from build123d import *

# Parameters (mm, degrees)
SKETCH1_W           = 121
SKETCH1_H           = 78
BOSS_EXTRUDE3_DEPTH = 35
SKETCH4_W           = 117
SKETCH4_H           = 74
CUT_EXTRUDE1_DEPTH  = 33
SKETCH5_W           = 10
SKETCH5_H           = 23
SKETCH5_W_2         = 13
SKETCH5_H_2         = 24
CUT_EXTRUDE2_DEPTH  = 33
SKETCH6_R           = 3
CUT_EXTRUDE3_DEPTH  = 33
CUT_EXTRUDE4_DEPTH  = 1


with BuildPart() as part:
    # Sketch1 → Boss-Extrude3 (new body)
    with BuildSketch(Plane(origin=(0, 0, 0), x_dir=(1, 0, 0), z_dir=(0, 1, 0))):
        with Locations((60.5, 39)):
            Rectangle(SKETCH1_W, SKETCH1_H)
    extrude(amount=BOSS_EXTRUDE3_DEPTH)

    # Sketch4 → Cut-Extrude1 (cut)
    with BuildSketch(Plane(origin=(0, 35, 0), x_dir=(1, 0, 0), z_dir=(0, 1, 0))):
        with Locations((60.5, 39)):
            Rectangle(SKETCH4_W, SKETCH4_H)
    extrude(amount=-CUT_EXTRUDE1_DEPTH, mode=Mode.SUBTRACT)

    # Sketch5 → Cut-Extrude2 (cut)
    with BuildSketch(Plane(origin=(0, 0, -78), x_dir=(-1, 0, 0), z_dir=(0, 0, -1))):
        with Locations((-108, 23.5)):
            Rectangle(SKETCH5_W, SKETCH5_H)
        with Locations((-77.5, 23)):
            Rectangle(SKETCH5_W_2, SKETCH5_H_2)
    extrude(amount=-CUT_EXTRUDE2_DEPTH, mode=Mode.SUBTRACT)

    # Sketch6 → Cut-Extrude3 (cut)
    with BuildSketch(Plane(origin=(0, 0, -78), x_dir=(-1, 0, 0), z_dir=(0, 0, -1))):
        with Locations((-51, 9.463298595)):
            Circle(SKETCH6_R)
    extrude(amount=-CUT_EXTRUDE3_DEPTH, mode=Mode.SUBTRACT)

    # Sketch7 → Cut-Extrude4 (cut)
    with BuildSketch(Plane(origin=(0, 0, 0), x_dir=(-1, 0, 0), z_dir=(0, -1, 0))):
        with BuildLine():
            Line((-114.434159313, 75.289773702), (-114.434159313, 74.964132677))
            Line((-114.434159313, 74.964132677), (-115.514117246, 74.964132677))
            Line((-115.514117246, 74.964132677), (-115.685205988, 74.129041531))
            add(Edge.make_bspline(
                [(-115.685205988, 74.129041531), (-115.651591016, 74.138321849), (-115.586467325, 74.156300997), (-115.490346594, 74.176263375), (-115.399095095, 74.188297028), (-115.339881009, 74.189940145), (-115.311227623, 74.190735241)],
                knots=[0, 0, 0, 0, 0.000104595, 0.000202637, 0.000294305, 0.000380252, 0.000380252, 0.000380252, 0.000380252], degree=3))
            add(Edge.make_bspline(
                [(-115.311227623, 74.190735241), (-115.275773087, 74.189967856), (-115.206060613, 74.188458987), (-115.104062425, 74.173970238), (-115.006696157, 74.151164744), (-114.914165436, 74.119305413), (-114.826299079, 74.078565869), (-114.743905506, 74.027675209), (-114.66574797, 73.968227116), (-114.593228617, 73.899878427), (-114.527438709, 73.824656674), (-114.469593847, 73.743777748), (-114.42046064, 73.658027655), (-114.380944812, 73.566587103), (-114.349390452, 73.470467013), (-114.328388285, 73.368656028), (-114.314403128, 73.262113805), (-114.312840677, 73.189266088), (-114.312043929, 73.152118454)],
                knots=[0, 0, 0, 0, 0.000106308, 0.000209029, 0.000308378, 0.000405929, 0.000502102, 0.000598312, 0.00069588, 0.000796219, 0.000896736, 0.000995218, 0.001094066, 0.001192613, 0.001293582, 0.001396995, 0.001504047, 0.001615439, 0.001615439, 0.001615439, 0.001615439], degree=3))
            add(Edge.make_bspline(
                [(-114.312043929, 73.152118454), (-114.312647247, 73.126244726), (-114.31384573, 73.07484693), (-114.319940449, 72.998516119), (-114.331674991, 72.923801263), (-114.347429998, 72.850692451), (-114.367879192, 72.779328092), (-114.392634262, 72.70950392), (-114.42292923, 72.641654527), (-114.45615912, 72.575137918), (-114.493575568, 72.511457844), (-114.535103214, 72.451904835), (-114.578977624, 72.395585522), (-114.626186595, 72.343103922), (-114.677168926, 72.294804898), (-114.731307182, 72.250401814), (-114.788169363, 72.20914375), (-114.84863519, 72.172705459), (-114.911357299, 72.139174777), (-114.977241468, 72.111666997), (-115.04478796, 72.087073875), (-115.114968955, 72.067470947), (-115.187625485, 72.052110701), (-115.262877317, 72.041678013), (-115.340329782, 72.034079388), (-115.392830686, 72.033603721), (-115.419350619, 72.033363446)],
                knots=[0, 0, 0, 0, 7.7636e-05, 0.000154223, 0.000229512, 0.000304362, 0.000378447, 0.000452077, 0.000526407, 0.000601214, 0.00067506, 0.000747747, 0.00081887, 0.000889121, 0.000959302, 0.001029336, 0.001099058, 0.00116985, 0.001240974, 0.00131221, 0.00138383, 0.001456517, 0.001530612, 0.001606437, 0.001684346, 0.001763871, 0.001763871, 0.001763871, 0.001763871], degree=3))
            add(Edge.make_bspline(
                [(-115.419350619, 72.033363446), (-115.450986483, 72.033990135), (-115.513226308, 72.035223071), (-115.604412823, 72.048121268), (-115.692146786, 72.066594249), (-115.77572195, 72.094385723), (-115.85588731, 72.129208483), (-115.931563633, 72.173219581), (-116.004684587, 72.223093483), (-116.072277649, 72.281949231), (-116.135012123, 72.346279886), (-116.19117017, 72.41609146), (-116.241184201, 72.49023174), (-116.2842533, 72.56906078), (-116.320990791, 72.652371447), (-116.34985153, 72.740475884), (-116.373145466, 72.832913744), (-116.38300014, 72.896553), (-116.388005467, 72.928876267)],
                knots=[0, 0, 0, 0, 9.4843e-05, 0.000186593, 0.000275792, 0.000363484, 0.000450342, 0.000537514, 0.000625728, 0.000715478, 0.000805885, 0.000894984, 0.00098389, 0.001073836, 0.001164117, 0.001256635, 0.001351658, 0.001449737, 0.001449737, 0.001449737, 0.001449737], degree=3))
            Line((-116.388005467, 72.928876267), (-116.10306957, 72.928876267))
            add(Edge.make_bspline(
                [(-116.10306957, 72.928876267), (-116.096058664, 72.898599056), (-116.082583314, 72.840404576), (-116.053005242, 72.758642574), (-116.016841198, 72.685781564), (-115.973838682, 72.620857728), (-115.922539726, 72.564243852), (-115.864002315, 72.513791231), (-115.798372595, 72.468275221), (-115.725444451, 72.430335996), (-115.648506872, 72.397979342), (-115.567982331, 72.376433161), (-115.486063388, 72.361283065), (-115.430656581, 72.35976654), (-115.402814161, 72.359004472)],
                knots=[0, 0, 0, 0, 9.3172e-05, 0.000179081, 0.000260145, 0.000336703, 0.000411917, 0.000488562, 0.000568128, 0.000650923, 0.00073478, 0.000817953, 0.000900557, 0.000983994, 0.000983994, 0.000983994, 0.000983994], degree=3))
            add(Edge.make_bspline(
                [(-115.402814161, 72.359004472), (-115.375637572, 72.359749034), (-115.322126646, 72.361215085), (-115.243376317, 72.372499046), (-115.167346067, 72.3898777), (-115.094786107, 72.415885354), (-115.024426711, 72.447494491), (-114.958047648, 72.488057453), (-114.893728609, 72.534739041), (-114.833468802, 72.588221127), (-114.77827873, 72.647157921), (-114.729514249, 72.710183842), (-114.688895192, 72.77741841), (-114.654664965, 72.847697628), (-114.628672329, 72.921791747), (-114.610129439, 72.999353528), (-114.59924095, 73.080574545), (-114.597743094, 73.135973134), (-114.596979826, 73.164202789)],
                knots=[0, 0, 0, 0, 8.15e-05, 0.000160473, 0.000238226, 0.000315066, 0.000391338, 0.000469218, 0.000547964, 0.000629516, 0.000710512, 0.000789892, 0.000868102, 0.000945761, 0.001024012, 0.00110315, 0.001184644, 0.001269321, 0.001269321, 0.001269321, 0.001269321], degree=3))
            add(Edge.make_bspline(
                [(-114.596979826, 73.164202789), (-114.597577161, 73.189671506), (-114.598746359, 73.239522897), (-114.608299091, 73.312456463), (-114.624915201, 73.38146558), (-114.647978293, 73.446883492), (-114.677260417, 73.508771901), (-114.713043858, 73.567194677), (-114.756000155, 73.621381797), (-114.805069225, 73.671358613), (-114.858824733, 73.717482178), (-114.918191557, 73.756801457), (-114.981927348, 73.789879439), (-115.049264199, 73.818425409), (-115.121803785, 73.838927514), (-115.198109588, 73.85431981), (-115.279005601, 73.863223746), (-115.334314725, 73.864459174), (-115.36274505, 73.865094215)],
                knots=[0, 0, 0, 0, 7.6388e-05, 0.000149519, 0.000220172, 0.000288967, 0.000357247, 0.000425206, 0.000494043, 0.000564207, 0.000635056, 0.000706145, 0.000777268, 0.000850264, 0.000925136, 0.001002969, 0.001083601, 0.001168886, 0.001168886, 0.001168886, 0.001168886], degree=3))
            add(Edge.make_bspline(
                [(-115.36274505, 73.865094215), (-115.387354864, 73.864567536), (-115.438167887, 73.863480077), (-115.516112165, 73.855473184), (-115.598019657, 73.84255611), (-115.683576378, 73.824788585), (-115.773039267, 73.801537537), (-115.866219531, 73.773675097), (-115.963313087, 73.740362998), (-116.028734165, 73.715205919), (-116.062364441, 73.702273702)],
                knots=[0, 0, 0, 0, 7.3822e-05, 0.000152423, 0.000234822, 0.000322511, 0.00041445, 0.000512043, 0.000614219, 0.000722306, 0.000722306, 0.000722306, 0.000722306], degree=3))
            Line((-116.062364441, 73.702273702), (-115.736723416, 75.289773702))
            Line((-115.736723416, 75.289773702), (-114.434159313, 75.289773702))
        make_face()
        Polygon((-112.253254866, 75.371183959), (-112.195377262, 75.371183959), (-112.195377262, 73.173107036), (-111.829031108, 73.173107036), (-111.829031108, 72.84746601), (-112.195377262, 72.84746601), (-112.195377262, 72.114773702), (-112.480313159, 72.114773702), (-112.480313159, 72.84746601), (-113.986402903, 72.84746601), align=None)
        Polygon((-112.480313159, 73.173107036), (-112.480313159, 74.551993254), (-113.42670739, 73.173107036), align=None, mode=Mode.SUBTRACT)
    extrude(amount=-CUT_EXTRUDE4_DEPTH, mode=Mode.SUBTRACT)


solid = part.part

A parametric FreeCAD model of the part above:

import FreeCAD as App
import Part
import Sketcher
Q = App.Units.Quantity


def add_polygon(sketch, points):
    """Adds a closed chain of lines whose ends are joined by coincident constraints."""
    first, n = sketch.GeometryCount, len(points)
    for a, b in zip(points, points[1:] + points[:1]):
        sketch.addGeometry(Part.LineSegment(App.Vector(*a, 0), App.Vector(*b, 0)), False)
    for i in range(n):
        sketch.addConstraint(Sketcher.Constraint("Coincident", first + i, 2, first + (i + 1) % n, 1))

doc = App.newDocument("Part")
body = doc.addObject("PartDesign::Body", "Body")

# Sketch on XZ plane
sketch1 = body.newObject("Sketcher::SketchObject", "Sketch")
sketch1.AttachmentSupport = (doc.getObject("XZ_Plane"), [""])
sketch1.MapMode = "FlatFace"
add_polygon(sketch1, [(0, -78), (0, 0), (121, 0), (121, -78)])  # lines 0-3
sketch1.addConstraint([
    Sketcher.Constraint("Vertical", 0),
    Sketcher.Constraint("Horizontal", 1),
    Sketcher.Constraint("Vertical", 2),
    Sketcher.Constraint("Horizontal", 3),
    Sketcher.Constraint("Coincident", 0, 2, -1, 1),
    Sketcher.Constraint("DistanceX", 1, 1, 1, 2, Q("121 mm")),
    Sketcher.Constraint("DistanceY", 0, 1, 0, 2, Q("78 mm")),
])
pad1 = body.newObject("PartDesign::Pad", "Pad")
pad1.Profile = sketch1
pad1.Length = 35
pad1.Reversed = True

# Sketch on XZ plane
sketch2 = body.newObject("Sketcher::SketchObject", "Sketch001")
sketch2.AttachmentSupport = (doc.getObject("XZ_Plane"), [""])
sketch2.MapMode = "FlatFace"
sketch2.AttachmentOffset = App.Placement(App.Vector(0, 0, -35), App.Rotation())
add_polygon(sketch2, [(2, -76), (2, -2), (119, -2), (119, -76)])  # lines 0-3
sketch2.addConstraint([
    Sketcher.Constraint("Vertical", 0),
    Sketcher.Constraint("Horizontal", 1),
    Sketcher.Constraint("Vertical", 2),
    Sketcher.Constraint("Horizontal", 3),
    Sketcher.Constraint("DistanceX", 1, 1, 1, 2, Q("117 mm")),
    Sketcher.Constraint("DistanceY", 0, 1, 0, 2, Q("74 mm")),
    Sketcher.Constraint("DistanceX", -1, 1, 0, 2, Q("2 mm")),
    Sketcher.Constraint("DistanceY", 0, 2, -1, 1, Q("2 mm")),
])
pocket1 = body.newObject("PartDesign::Pocket", "Pocket")
pocket1.Profile = sketch2
pocket1.Length = 33
pocket1.Reversed = True

# Sketch on XY plane
sketch3 = body.newObject("Sketcher::SketchObject", "Sketch002")
sketch3.AttachmentSupport = (doc.getObject("XY_Plane"), [""])
sketch3.MapMode = "FlatFace"
sketch3.AttachmentOffset = App.Placement(App.Vector(0, 0, -78), App.Rotation())
add_polygon(sketch3, [(113, 35), (113, 12), (103, 12), (103, 35)])  # lines 0-3
add_polygon(sketch3, [(84, 35), (84, 11), (71, 11), (71, 35)])  # lines 4-7
sketch3.addConstraint([
    Sketcher.Constraint("Vertical", 0),
    Sketcher.Constraint("Horizontal", 1),
    Sketcher.Constraint("Vertical", 2),
    Sketcher.Constraint("Horizontal", 3),
    Sketcher.Constraint("Vertical", 4),
    Sketcher.Constraint("Horizontal", 5),
    Sketcher.Constraint("Vertical", 6),
    Sketcher.Constraint("Horizontal", 7),
    Sketcher.Constraint("Horizontal", 3, 2, 6, 2),
    Sketcher.Constraint("DistanceX", 1, 2, 1, 1, Q("10 mm")),
    Sketcher.Constraint("DistanceX", 5, 2, 5, 1, Q("13 mm")),
    Sketcher.Constraint("DistanceY", 0, 2, 0, 1, Q("23 mm")),
    Sketcher.Constraint("DistanceY", 4, 2, 4, 1, Q("24 mm")),
    Sketcher.Constraint("DistanceX", -1, 1, 0, 2, Q("113 mm")),
    Sketcher.Constraint("DistanceY", -1, 1, 0, 2, Q("12 mm")),
    Sketcher.Constraint("DistanceX", -1, 1, 4, 2, Q("84 mm")),
])
pocket2 = body.newObject("PartDesign::Pocket", "Pocket001")
pocket2.Profile = sketch3
pocket2.Length = 33
pocket2.Reversed = True

# Sketch on XY plane
sketch4 = body.newObject("Sketcher::SketchObject", "Sketch003")
sketch4.AttachmentSupport = (doc.getObject("XY_Plane"), [""])
sketch4.MapMode = "FlatFace"
sketch4.AttachmentOffset = App.Placement(App.Vector(0, 0, -78), App.Rotation())
sketch4.addGeometry(Part.Circle(App.Vector(51, 9.5, 0), App.Vector(0, 0, 1), 3), False)
sketch4.addConstraint([
    Sketcher.Constraint("Diameter", 0, Q("6 mm")),
    Sketcher.Constraint("DistanceX", -1, 1, 0, 3, Q("51 mm")),
    Sketcher.Constraint("DistanceY", -1, 1, 0, 3, Q("9.463299 mm")),
])
pocket3 = body.newObject("PartDesign::Pocket", "Pocket002")
pocket3.Profile = sketch4
pocket3.Length = 33
pocket3.Reversed = True

# Sketch on XZ plane
sketch5 = body.newObject("Sketcher::SketchObject", "Sketch004")
sketch5.AttachmentSupport = (doc.getObject("XZ_Plane"), [""])
sketch5.MapMode = "FlatFace"
sketch5.addGeometry(Part.LineSegment(App.Vector(114.434159, -74.964133, 0), App.Vector(114.434159, -75.289774, 0)), False)  # 0
sketch5.addGeometry(Part.LineSegment(App.Vector(114.434159, -75.289774, 0), App.Vector(115.736723, -75.289774, 0)), False)  # 1
sketch5.addGeometry(Part.LineSegment(App.Vector(115.736723, -75.289774, 0), App.Vector(116.062364, -73.702274, 0)), False)  # 2
sketch5.addGeometry(Part.BSplineCurve([App.Vector(115.362745, -73.865094, 0), App.Vector(115.387355, -73.864568, 0), App.Vector(115.438168, -73.86348, 0), App.Vector(115.516112, -73.855473, 0), App.Vector(115.59802, -73.842556, 0), App.Vector(115.683576, -73.824789, 0), App.Vector(115.773039, -73.801538, 0), App.Vector(115.86622, -73.773675, 0), App.Vector(115.963313, -73.740363, 0), App.Vector(116.028734, -73.715206, 0), App.Vector(116.062364, -73.702274, 0)], [4, 1, 1, 1, 1, 1, 1, 1, 4], [0, 0.000073822, 0.000152423, 0.000234822, 0.000322511, 0.00041445, 0.000512043, 0.000614219, 0.000722306], False, 3, [1, 1, 1, 1, 1, 1, 1, 1, 1, 1, 1], False), False)  # 3
sketch5.addGeometry(Part.BSplineCurve([App.Vector(114.59698, -73.164203, 0), App.Vector(114.597577, -73.189672, 0), App.Vector(114.598746, -73.239523, 0), App.Vector(114.608299, -73.312456, 0), App.Vector(114.624915, -73.381466, 0), App.Vector(114.647978, -73.446883, 0), App.Vector(114.67726, -73.508772, 0), App.Vector(114.713044, -73.567195, 0), App.Vector(114.756, -73.621382, 0), App.Vector(114.805069, -73.671359, 0), App.Vector(114.858825, -73.717482, 0), App.Vector(114.918192, -73.756801, 0), App.Vector(114.981927, -73.789879, 0), App.Vector(115.049264, -73.818425, 0), App.Vector(115.121804, -73.838928, 0), App.Vector(115.19811, -73.85432, 0), App.Vector(115.279006, -73.863224, 0), App.Vector(115.334315, -73.864459, 0), App.Vector(115.362745, -73.865094, 0)], [4, 1, 1, 1, 1, 1, 1, 1, 1, 1, 1, 1, 1, 1, 1, 1, 4], [0, 0.000076388, 0.000149519, 0.000220172, 0.000288967, 0.000357247, 0.000425206, 0.000494043, 0.000564207, 0.000635056, 0.000706145, 0.000777268, 0.000850264, 0.000925136, 0.001002969, 0.001083601, 0.001168886], False, 3, [1, 1, 1, 1, 1, 1, 1, 1, 1, 1, 1, 1, 1, 1, 1, 1, 1, 1, 1], False), False)  # 4
sketch5.addGeometry(Part.BSplineCurve([App.Vector(115.402814, -72.359004, 0), App.Vector(115.375638, -72.359749, 0), App.Vector(115.322127, -72.361215, 0), App.Vector(115.243376, -72.372499, 0), App.Vector(115.167346, -72.389878, 0), App.Vector(115.094786, -72.415885, 0), App.Vector(115.024427, -72.447494, 0), App.Vector(114.958048, -72.488057, 0), App.Vector(114.893729, -72.534739, 0), App.Vector(114.833469, -72.588221, 0), App.Vector(114.778279, -72.647158, 0), App.Vector(114.729514, -72.710184, 0), App.Vector(114.688895, -72.777418, 0), App.Vector(114.654665, -72.847698, 0), App.Vector(114.628672, -72.921792, 0), App.Vector(114.610129, -72.999354, 0), App.Vector(114.599241, -73.080575, 0), App.Vector(114.597743, -73.135973, 0), App.Vector(114.59698, -73.164203, 0)], [4, 1, 1, 1, 1, 1, 1, 1, 1, 1, 1, 1, 1, 1, 1, 1, 4], [0, 0.0000815, 0.000160473, 0.000238226, 0.000315066, 0.000391338, 0.000469218, 0.000547964, 0.000629516, 0.000710512, 0.000789892, 0.000868102, 0.000945761, 0.001024012, 0.00110315, 0.001184644, 0.001269321], False, 3, [1, 1, 1, 1, 1, 1, 1, 1, 1, 1, 1, 1, 1, 1, 1, 1, 1, 1, 1], False), False)  # 5
sketch5.addGeometry(Part.BSplineCurve([App.Vector(116.10307, -72.928876, 0), App.Vector(116.096059, -72.898599, 0), App.Vector(116.082583, -72.840405, 0), App.Vector(116.053005, -72.758643, 0), App.Vector(116.016841, -72.685782, 0), App.Vector(115.973839, -72.620858, 0), App.Vector(115.92254, -72.564244, 0), App.Vector(115.864002, -72.513791, 0), App.Vector(115.798373, -72.468275, 0), App.Vector(115.725444, -72.430336, 0), App.Vector(115.648507, -72.397979, 0), App.Vector(115.567982, -72.376433, 0), App.Vector(115.486063, -72.361283, 0), App.Vector(115.430657, -72.359767, 0), App.Vector(115.402814, -72.359004, 0)], [4, 1, 1, 1, 1, 1, 1, 1, 1, 1, 1, 1, 4], [0, 0.000093172, 0.000179081, 0.000260145, 0.000336703, 0.000411917, 0.000488562, 0.000568128, 0.000650923, 0.00073478, 0.000817953, 0.000900557, 0.000983994], False, 3, [1, 1, 1, 1, 1, 1, 1, 1, 1, 1, 1, 1, 1, 1, 1], False), False)  # 6
sketch5.addGeometry(Part.LineSegment(App.Vector(116.10307, -72.928876, 0), App.Vector(116.388005, -72.928876, 0)), False)  # 7
sketch5.addGeometry(Part.BSplineCurve([App.Vector(115.419351, -72.033363, 0), App.Vector(115.450986, -72.03399, 0), App.Vector(115.513226, -72.035223, 0), App.Vector(115.604413, -72.048121, 0), App.Vector(115.692147, -72.066594, 0), App.Vector(115.775722, -72.094386, 0), App.Vector(115.855887, -72.129208, 0), App.Vector(115.931564, -72.17322, 0), App.Vector(116.004685, -72.223093, 0), App.Vector(116.072278, -72.281949, 0), App.Vector(116.135012, -72.34628, 0), App.Vector(116.19117, -72.416091, 0), App.Vector(116.241184, -72.490232, 0), App.Vector(116.284253, -72.569061, 0), App.Vector(116.320991, -72.652371, 0), App.Vector(116.349852, -72.740476, 0), App.Vector(116.373145, -72.832914, 0), App.Vector(116.383, -72.896553, 0), App.Vector(116.388005, -72.928876, 0)], [4, 1, 1, 1, 1, 1, 1, 1, 1, 1, 1, 1, 1, 1, 1, 1, 4], [0, 0.000094843, 0.000186593, 0.000275792, 0.000363484, 0.000450342, 0.000537514, 0.000625728, 0.000715478, 0.000805885, 0.000894984, 0.00098389, 0.001073836, 0.001164117, 0.001256635, 0.001351658, 0.001449737], False, 3, [1, 1, 1, 1, 1, 1, 1, 1, 1, 1, 1, 1, 1, 1, 1, 1, 1, 1, 1], False), False)  # 8
sketch5.addGeometry(Part.BSplineCurve([App.Vector(114.312044, -73.152118, 0), App.Vector(114.312647, -73.126245, 0), App.Vector(114.313846, -73.074847, 0), App.Vector(114.31994, -72.998516, 0), App.Vector(114.331675, -72.923801, 0), App.Vector(114.34743, -72.850692, 0), App.Vector(114.367879, -72.779328, 0), App.Vector(114.392634, -72.709504, 0), App.Vector(114.422929, -72.641655, 0), App.Vector(114.456159, -72.575138, 0), App.Vector(114.493576, -72.511458, 0), App.Vector(114.535103, -72.451905, 0), App.Vector(114.578978, -72.395586, 0), App.Vector(114.626187, -72.343104, 0), App.Vector(114.677169, -72.294805, 0), App.Vector(114.731307, -72.250402, 0), App.Vector(114.788169, -72.209144, 0), App.Vector(114.848635, -72.172705, 0), App.Vector(114.911357, -72.139175, 0), App.Vector(114.977241, -72.111667, 0), App.Vector(115.044788, -72.087074, 0), App.Vector(115.114969, -72.067471, 0), App.Vector(115.187625, -72.052111, 0), App.Vector(115.262877, -72.041678, 0), App.Vector(115.34033, -72.034079, 0), App.Vector(115.392831, -72.033604, 0), App.Vector(115.419351, -72.033363, 0)], [4, 1, 1, 1, 1, 1, 1, 1, 1, 1, 1, 1, 1, 1, 1, 1, 1, 1, 1, 1, 1, 1, 1, 1, 4], [0, 0.000077636, 0.000154223, 0.000229512, 0.000304362, 0.000378447, 0.000452077, 0.000526407, 0.000601214, 0.00067506, 0.000747747, 0.00081887, 0.000889121, 0.000959302, 0.001029336, 0.001099058, 0.00116985, 0.001240974, 0.00131221, 0.00138383, 0.001456517, 0.001530612, 0.001606437, 0.001684346, 0.001763871], False, 3, [1, 1, 1, 1, 1, 1, 1, 1, 1, 1, 1, 1, 1, 1, 1, 1, 1, 1, 1, 1, 1, 1, 1, 1, 1, 1, 1], False), False)  # 9
sketch5.addGeometry(Part.BSplineCurve([App.Vector(115.311228, -74.190735, 0), App.Vector(115.275773, -74.189968, 0), App.Vector(115.206061, -74.188459, 0), App.Vector(115.104062, -74.17397, 0), App.Vector(115.006696, -74.151165, 0), App.Vector(114.914165, -74.119305, 0), App.Vector(114.826299, -74.078566, 0), App.Vector(114.743906, -74.027675, 0), App.Vector(114.665748, -73.968227, 0), App.Vector(114.593229, -73.899878, 0), App.Vector(114.527439, -73.824657, 0), App.Vector(114.469594, -73.743778, 0), App.Vector(114.420461, -73.658028, 0), App.Vector(114.380945, -73.566587, 0), App.Vector(114.34939, -73.470467, 0), App.Vector(114.328388, -73.368656, 0), App.Vector(114.314403, -73.262114, 0), App.Vector(114.312841, -73.189266, 0), App.Vector(114.312044, -73.152118, 0)], [4, 1, 1, 1, 1, 1, 1, 1, 1, 1, 1, 1, 1, 1, 1, 1, 4], [0, 0.000106308, 0.000209029, 0.000308378, 0.000405929, 0.000502102, 0.000598312, 0.00069588, 0.000796219, 0.000896736, 0.000995218, 0.001094066, 0.001192613, 0.001293582, 0.001396995, 0.001504047, 0.001615439], False, 3, [1, 1, 1, 1, 1, 1, 1, 1, 1, 1, 1, 1, 1, 1, 1, 1, 1, 1, 1], False), False)  # 10
sketch5.addGeometry(Part.BSplineCurve([App.Vector(115.685206, -74.129042, 0), App.Vector(115.651591, -74.138322, 0), App.Vector(115.586467, -74.156301, 0), App.Vector(115.490347, -74.176263, 0), App.Vector(115.399095, -74.188297, 0), App.Vector(115.339881, -74.18994, 0), App.Vector(115.311228, -74.190735, 0)], [4, 1, 1, 1, 4], [0, 0.000104595, 0.000202637, 0.000294305, 0.000380252], False, 3, [1, 1, 1, 1, 1, 1, 1], False), False)  # 11
sketch5.addGeometry(Part.LineSegment(App.Vector(115.685206, -74.129042, 0), App.Vector(115.514117, -74.964133, 0)), False)  # 12
sketch5.addGeometry(Part.LineSegment(App.Vector(115.514117, -74.964133, 0), App.Vector(114.434159, -74.964133, 0)), False)  # 13
add_polygon(sketch5, [(112.195377, -75.371184), (112.253255, -75.371184), (113.986403, -72.847466), (112.480313, -72.847466), (112.480313, -72.114774), (112.195377, -72.114774), (112.195377, -72.847466), (111.829031, -72.847466), (111.829031, -73.173107), (112.195377, -73.173107)])  # lines 14-23
add_polygon(sketch5, [(112.480313, -73.173107), (113.426707, -73.173107), (112.480313, -74.551993)])  # lines 24-26
sketch5.addConstraint([
    Sketcher.Constraint("Block", 3),
    Sketcher.Constraint("Block", 4),
    Sketcher.Constraint("Block", 5),
    Sketcher.Constraint("Block", 6),
    Sketcher.Constraint("Block", 8),
    Sketcher.Constraint("Block", 9),
    Sketcher.Constraint("Block", 10),
    Sketcher.Constraint("Block", 11),
    Sketcher.Constraint("Coincident", 0, 2, 1, 1),
    Sketcher.Constraint("Coincident", 1, 2, 2, 1),
    Sketcher.Constraint("Coincident", 2, 2, 3, 2),
    Sketcher.Constraint("Coincident", 6, 1, 7, 1),
    Sketcher.Constraint("Coincident", 7, 2, 8, 2),
    Sketcher.Constraint("Coincident", 11, 1, 12, 1),
    Sketcher.Constraint("Coincident", 12, 2, 13, 1),
    Sketcher.Constraint("Coincident", 13, 2, 0, 1),
    Sketcher.Constraint("Vertical", 0),
    Sketcher.Constraint("Horizontal", 1),
    Sketcher.Constraint("Horizontal", 13),
    Sketcher.Constraint("Horizontal", 14),
    Sketcher.Constraint("Horizontal", 16),
    Sketcher.Constraint("Vertical", 17),
    Sketcher.Constraint("Horizontal", 18),
    Sketcher.Constraint("Vertical", 19),
    Sketcher.Constraint("Horizontal", 20),
    Sketcher.Constraint("Vertical", 21),
    Sketcher.Constraint("Horizontal", 22),
    Sketcher.Constraint("Vertical", 23),
    Sketcher.Constraint("Horizontal", 24),
    Sketcher.Constraint("Vertical", 26),
    Sketcher.Constraint("DistanceY", 0, 2, 17, 2, Q("3.175 mm")),
    Sketcher.Constraint("DistanceX", 16, 2, 16, 1, Q("1.50609 mm")),
    Sketcher.Constraint("DistanceY", 0, 2, 0, 1, Q("0.325641 mm")),
    Sketcher.Constraint("DistanceY", 21, 2, 21, 1, Q("0.325641 mm")),
    Sketcher.Constraint("DistanceY", 1, 2, 2, 2, Q("1.5875 mm")),
    Sketcher.Constraint("Distance", 15, Q("3.061528 mm")),
    Sketcher.Constraint("Distance", 25, Q("1.67242 mm")),
    Sketcher.Constraint("DistanceX", 1, 1, 1, 2, Q("1.302564 mm")),
    Sketcher.Constraint("DistanceX", 13, 2, 13, 1, Q("1.079958 mm")),
    Sketcher.Constraint("DistanceX", 14, 1, 14, 2, Q("0.057878 mm")),
    Sketcher.Constraint("DistanceX", 18, 2, 18, 1, Q("0.284936 mm")),
    Sketcher.Constraint("DistanceX", 20, 2, 20, 1, Q("0.366346 mm")),
    Sketcher.Constraint("DistanceX", 22, 1, 22, 2, Q("0.366346 mm")),
    Sketcher.Constraint("DistanceX", 24, 1, 24, 2, Q("0.946394 mm")),
    Sketcher.Constraint("DistanceY", 17, 1, 17, 2, Q("0.732692 mm")),
    Sketcher.Constraint("DistanceY", 19, 2, 19, 1, Q("0.732692 mm")),
    Sketcher.Constraint("DistanceX", -1, 1, 0, 2, Q("114.434159 mm")),
    Sketcher.Constraint("DistanceX", -1, 1, 20, 2, Q("111.829031 mm")),
    Sketcher.Constraint("DistanceY", 24, 2, 15, 2, Q("0.325641 mm")),
    Sketcher.Constraint("DistanceX", 22, 2, 24, 2, Q("1.23133 mm")),
])
pocket4 = body.newObject("PartDesign::Pocket", "Pocket003")
pocket4.Profile = sketch5
pocket4.Length = 1

doc.recompute()
